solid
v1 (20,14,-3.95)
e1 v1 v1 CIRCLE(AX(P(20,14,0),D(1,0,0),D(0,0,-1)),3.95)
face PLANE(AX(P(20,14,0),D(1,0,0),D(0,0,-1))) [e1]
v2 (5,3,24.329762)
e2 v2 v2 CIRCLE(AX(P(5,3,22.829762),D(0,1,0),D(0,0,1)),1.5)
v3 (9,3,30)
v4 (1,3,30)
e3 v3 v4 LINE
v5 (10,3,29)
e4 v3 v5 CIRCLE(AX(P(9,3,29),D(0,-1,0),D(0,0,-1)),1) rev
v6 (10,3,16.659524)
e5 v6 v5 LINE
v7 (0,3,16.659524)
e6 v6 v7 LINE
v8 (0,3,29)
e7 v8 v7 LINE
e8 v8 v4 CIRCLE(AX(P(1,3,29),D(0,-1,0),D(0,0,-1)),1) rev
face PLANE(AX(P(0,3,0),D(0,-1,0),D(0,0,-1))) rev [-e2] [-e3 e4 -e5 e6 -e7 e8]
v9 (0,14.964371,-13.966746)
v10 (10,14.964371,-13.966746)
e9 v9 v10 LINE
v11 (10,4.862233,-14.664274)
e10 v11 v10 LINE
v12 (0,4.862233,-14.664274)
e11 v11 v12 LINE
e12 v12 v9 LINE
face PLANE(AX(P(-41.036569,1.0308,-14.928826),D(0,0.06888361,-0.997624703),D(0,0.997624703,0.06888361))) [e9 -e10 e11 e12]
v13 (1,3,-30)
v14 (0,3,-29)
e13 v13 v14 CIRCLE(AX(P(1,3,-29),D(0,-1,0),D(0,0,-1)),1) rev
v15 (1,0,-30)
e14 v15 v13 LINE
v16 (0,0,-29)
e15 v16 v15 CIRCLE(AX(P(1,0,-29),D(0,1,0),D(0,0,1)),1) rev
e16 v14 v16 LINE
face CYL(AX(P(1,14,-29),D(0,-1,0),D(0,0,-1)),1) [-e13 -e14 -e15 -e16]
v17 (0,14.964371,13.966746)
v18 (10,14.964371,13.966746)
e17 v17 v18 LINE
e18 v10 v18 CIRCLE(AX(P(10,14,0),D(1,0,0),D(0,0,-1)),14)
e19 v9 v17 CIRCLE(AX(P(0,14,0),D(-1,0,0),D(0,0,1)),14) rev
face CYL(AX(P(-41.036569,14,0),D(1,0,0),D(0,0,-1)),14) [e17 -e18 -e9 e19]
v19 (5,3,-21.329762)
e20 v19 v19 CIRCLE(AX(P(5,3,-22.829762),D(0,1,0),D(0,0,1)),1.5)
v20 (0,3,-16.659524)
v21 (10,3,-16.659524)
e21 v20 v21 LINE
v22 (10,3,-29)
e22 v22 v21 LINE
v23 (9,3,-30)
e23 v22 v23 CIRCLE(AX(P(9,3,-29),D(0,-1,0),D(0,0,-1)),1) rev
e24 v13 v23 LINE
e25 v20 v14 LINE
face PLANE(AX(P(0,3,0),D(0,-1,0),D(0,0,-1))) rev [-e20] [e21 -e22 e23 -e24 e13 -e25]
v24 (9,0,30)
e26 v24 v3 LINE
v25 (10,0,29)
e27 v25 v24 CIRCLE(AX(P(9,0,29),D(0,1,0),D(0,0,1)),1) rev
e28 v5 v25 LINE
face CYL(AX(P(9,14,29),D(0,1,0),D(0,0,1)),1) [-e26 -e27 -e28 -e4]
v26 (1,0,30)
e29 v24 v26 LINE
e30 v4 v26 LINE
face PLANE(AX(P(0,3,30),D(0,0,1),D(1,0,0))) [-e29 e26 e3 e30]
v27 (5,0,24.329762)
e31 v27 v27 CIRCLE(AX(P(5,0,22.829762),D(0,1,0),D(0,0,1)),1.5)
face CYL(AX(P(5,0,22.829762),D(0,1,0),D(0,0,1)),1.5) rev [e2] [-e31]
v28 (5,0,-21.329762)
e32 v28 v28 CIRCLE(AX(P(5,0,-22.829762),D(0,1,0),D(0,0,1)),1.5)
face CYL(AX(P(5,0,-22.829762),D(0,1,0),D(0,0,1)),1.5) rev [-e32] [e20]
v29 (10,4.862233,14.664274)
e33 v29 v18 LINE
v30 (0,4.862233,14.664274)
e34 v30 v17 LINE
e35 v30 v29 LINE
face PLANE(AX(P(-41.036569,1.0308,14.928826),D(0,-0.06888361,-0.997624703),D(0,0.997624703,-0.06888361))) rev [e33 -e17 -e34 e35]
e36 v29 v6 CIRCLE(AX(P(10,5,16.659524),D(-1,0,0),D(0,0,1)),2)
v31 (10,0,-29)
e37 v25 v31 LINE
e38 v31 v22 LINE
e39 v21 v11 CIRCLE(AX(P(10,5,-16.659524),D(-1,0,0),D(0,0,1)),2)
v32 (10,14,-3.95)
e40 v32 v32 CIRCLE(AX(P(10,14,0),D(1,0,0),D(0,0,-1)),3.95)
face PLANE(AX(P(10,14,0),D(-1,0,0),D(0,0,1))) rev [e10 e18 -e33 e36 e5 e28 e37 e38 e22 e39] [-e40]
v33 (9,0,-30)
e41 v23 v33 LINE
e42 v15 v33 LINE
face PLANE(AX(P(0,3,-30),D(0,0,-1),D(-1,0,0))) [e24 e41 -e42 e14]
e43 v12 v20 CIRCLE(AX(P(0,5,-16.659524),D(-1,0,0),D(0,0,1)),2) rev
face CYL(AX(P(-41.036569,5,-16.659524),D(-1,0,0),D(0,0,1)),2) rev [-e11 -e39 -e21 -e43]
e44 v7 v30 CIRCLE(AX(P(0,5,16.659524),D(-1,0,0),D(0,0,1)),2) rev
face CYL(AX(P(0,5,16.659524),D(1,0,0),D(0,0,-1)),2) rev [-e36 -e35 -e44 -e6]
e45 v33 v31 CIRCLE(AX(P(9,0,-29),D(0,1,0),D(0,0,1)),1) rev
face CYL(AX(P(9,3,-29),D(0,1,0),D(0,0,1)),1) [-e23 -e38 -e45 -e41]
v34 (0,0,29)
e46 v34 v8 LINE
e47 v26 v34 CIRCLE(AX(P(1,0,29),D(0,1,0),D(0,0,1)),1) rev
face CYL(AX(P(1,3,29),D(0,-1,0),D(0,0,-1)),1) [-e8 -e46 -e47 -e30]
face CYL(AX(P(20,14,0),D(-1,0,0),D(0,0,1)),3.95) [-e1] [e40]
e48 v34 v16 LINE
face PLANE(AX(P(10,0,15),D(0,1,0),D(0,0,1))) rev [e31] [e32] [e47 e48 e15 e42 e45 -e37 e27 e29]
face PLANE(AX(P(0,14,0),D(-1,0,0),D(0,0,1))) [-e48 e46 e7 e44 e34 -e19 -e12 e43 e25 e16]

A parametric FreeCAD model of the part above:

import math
import FreeCAD as App
import Part
import Sketcher

V = App.Vector


def edges_at(feature, points):
    """Names of the edges that pass closest to the given points."""
    edges = feature.Shape.Edges
    near = lambda p: min(range(len(edges)), key=lambda i: edges[i].distToShape(Part.Vertex(*p))[0])
    return sorted({f"Edge{near(p) + 1}" for p in points})

doc = App.newDocument("Part")
body = doc.addObject("PartDesign::Body", "Body")

sketch1 = body.newObject("Sketcher::SketchObject", "Sketch")
sketch1.AttachmentSupport = (doc.getObject("YZ_Plane"), [""])
sketch1.MapMode = "FlatFace"
sketch1.addGeometry([
    Part.LineSegment(V(0, 15, 0), V(0, -15, 0)),
    Part.LineSegment(V(0, -15, 0), V(17.058126, -9.520917, 0)),
    Part.ArcOfCircle(Part.Circle(V(14, 0, 0), V(0, 0, 1), 10), math.radians(-72.192943), math.radians(72.192943)),
    Part.LineSegment(V(17.058126, 9.520917, 0), V(0, 15, 0)),
], False)
sketch1.addConstraint([
    Sketcher.Constraint("Coincident", 0, 2, 1, 1),
    Sketcher.Constraint("Tangent", 1, 2, 2, 1),
    Sketcher.Constraint("Tangent", 2, 2, 3, 1),
    Sketcher.Constraint("Coincident", 3, 2, 0, 1),
    Sketcher.Constraint("Vertical", 0),
    Sketcher.Constraint("Symmetric", 0, 2, 3, 2, -1, 1),
    Sketcher.Constraint("PointOnObject", 2, 3, -1),
    Sketcher.Constraint("Radius", 2, 10.0),
    Sketcher.Constraint("DistanceY", 0, 2, 0, 1, 30.0),
    Sketcher.Constraint("DistanceX", -1, 1, 2, 3, 14.0),
])
pad1 = body.newObject("PartDesign::Pad", "Pad")
pad1.Profile = sketch1
pad1.Length = 10

sketch2 = body.newObject("Sketcher::SketchObject", "Sketch001")
sketch2.AttachmentSupport = (doc.getObject("YZ_Plane"), [""])
sketch2.MapMode = "FlatFace"
sketch2.AttachmentOffset = App.Placement(V(0, 0, 10), App.Rotation())
sketch2.addGeometry(Part.Circle(V(14, 0, 0), V(0, 0, 1), 3.95), False)
sketch2.addConstraint([
    Sketcher.Constraint("PointOnObject", 0, 3, -1),
    Sketcher.Constraint("Diameter", 0, 7.9),
    Sketcher.Constraint("DistanceX", -1, 1, 0, 3, 14.0),
])
pad2 = body.newObject("PartDesign::Pad", "Pad001")
pad2.Profile = sketch2
pad2.Length = 10

sketch3 = body.newObject("Sketcher::SketchObject", "Sketch002")
sketch3.AttachmentSupport = (doc.getObject("YZ_Plane"), [""])
sketch3.MapMode = "FlatFace"
sketch3.AttachmentOffset = App.Placement(V(0, 0, 10), App.Rotation())
sketch3.addGeometry([
    Part.LineSegment(V(17.058126, -9.520917, 0), V(0, -15, 0)),
    Part.LineSegment(V(0, -15, 0), V(14.964371, -13.966746, 0)),
    Part.ArcOfCircle(Part.Circle(V(14, 0, 0), V(0, 0, 1), 14), math.radians(-86.050132), math.radians(86.050132)),
    Part.LineSegment(V(14.964371, 13.966746, 0), V(0, 15, 0)),
    Part.LineSegment(V(0, 15, 0), V(17.058126, 9.520917, 0)),
    Part.ArcOfCircle(Part.Circle(V(14, 0, 0), V(0, 0, 1), 10), math.radians(-72.192943), math.radians(72.192943)),
], False)
sketch3.addConstraint([
    Sketcher.Constraint("Coincident", 0, 2, 1, 1),
    Sketcher.Constraint("Tangent", 1, 2, 2, 1),
    Sketcher.Constraint("Tangent", 2, 2, 3, 1),
    Sketcher.Constraint("Coincident", 3, 2, 4, 1),
    Sketcher.Constraint("Tangent", 4, 2, 5, 2),
    Sketcher.Constraint("Tangent", 5, 1, 0, 1),
    Sketcher.Constraint("Coincident", 5, 3, 2, 3),
    Sketcher.Constraint("Symmetric", 0, 2, 3, 2, -1, 1),
    Sketcher.Constraint("Symmetric", 1, 2, 2, 2, -1),
    Sketcher.Constraint("Radius", 2, 14.0),
    Sketcher.Constraint("Radius", 5, 10.0),
    Sketcher.Constraint("Distance", 1, 15.0),
    Sketcher.Constraint("DistanceX", -1, 1, 2, 3, 14.0),
])
pad3 = body.newObject("PartDesign::Pad", "Pad002")
pad3.Profile = sketch3
pad3.Length = 10
pad3.Reversed = True

sketch4 = body.newObject("Sketcher::SketchObject", "Sketch003")
sketch4.AttachmentSupport = (doc.getObject("XZ_Plane"), [""])
sketch4.MapMode = "FlatFace"
sketch4.addGeometry([
    Part.LineSegment(V(0, 30, 0), V(0, -30, 0)),
    Part.LineSegment(V(0, -30, 0), V(10, -30, 0)),
    Part.LineSegment(V(10, -30, 0), V(10, 30, 0)),
    Part.LineSegment(V(10, 30, 0), V(0, 30, 0)),
], False)
sketch4.addConstraint([
    Sketcher.Constraint("Coincident", 0, 2, 1, 1),
    Sketcher.Constraint("Coincident", 1, 2, 2, 1),
    Sketcher.Constraint("Coincident", 2, 2, 3, 1),
    Sketcher.Constraint("Coincident", 3, 2, 0, 1),
    Sketcher.Constraint("Vertical", 0),
    Sketcher.Constraint("Horizontal", 1),
    Sketcher.Constraint("Vertical", 2),
    Sketcher.Constraint("Horizontal", 3),
    Sketcher.Constraint("Symmetric", 0, 2, 3, 2, -1, 1),
    Sketcher.Constraint("DistanceX", 1, 1, 1, 2, 10.0),
    Sketcher.Constraint("DistanceY", 0, 2, 0, 1, 60.0),
])
pad4 = body.newObject("PartDesign::Pad", "Pad003")
pad4.Profile = sketch4
pad4.Length = 3
pad4.Reversed = True
doc.recompute()

fillet = body.newObject("PartDesign::Fillet", "Fillet")
fillet.Base = (pad4, edges_at(pad4, [
    (10, 1.5, 30),
    (0, 1.5, -30),
    (0, 1.5, 30),
    (10, 1.5, -30),
]))
fillet.Radius = 1
doc.recompute()

fillet2 = body.newObject("PartDesign::Fillet", "Fillet001")
fillet2.Base = (fillet, edges_at(fillet, [(5, 3, -14.793), (5, 3, 14.793)]))
fillet2.Radius = 2

sketch5 = body.newObject("Sketcher::SketchObject", "Sketch004")
sketch5.AttachmentSupport = (doc.getObject("XZ_Plane"), [""])
sketch5.MapMode = "FlatFace"
sketch5.AttachmentOffset = App.Placement(V(0, 0, -3), App.Rotation())
sketch5.addGeometry([
    Part.Circle(V(5, -22.829762, 0), V(0, 0, 1), 1.5),
    Part.Circle(V(5, 22.829762, 0), V(0, 0, 1), 1.5),
], False)
sketch5.addConstraint([
    Sketcher.Constraint("Equal", 0, 1),
    Sketcher.Constraint("Symmetric", 0, 3, 1, 3, -1),
    Sketcher.Constraint("Diameter", 0, 3.0),
    Sketcher.Constraint("DistanceX", -1, 1, 0, 3, 5.0),
    Sketcher.Constraint("DistanceY", 0, 3, -1, 1, 22.829762),
])
pocket1 = body.newObject("PartDesign::Pocket", "Pocket")
pocket1.Profile = sketch5
pocket1.Length = 3
pocket1.Reversed = True

doc.recompute()
